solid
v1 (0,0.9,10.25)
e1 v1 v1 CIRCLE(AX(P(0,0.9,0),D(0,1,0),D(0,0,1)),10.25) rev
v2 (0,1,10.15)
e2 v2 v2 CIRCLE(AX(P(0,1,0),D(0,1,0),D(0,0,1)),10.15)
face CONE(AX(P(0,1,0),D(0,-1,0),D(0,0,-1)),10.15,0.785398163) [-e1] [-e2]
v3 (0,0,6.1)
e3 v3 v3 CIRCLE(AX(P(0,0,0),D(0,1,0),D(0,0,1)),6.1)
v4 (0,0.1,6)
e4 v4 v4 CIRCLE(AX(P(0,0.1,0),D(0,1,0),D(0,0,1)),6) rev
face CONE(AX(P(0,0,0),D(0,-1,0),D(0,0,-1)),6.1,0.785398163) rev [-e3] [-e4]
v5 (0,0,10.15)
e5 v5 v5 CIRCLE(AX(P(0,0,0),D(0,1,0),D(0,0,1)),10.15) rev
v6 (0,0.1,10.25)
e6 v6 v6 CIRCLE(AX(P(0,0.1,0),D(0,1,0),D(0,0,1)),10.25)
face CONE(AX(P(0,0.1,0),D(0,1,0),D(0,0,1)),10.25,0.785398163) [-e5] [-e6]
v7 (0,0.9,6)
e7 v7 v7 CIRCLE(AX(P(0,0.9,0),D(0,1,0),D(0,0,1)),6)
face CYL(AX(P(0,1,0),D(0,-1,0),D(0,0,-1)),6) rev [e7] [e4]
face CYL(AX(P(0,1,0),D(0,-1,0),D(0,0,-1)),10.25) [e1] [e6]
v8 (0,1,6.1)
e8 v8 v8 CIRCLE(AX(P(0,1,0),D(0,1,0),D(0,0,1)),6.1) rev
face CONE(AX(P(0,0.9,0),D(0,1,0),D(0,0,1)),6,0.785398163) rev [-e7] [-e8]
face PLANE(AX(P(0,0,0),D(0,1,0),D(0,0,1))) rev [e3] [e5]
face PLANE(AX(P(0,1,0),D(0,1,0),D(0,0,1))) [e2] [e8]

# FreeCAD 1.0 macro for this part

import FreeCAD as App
import Part
import Sketcher
from FreeCAD import Vector


def edges_at(feature, points):
    """Names of the edges that pass closest to the given points."""
    edges = feature.Shape.Edges
    near = lambda p: min(range(len(edges)), key=lambda i: edges[i].distToShape(Part.Vertex(*p))[0])
    return sorted({f"Edge{near(p) + 1}" for p in points})

doc = App.newDocument("Part")
params = doc.addObject("Spreadsheet::Sheet", "Params")
for row, (alias, value) in enumerate([
    ("sketch1_diameter", "12 mm"),
    ("sketch1_diameter2", "20.5 mm"),
    ("pad1_length", "1 mm"),
    ("chamfer_size", "0.1 mm"),
    ("chamfer2_size", "0.1 mm"),
], start=1):
    params.set(f"A{row}", alias)
    params.set(f"B{row}", "=" + value)
    params.setAlias(f"B{row}", alias)

body = doc.addObject("PartDesign::Body", "Body")

# Sketch on XZ plane
sketch1 = body.newObject("Sketcher::SketchObject", "Sketch")
sketch1.AttachmentSupport = (doc.getObject("XZ_Plane"), [""])
sketch1.MapMode = "FlatFace"
sketch1.addGeometry([
    Part.Circle(Vector(0, 0, 0), Vector(0, 0, 1), 10),
    Part.Circle(Vector(0, 0, 0), Vector(0, 0, 1), 6),
], False)
sketch1.addConstraint([
    Sketcher.Constraint("Coincident", 0, 3, -1, 1),
    Sketcher.Constraint("Coincident", 1, 3, -1, 1),
    Sketcher.Constraint("Diameter", 1, 12.0),
    Sketcher.Constraint("Diameter", 0, 20.5),
])
sketch1.setExpression("Constraints[2]", "Params.sketch1_diameter")
sketch1.setExpression("Constraints[3]", "Params.sketch1_diameter2")
pad1 = body.newObject("PartDesign::Pad", "Pad")
pad1.Profile = sketch1
pad1.setExpression("Length", "Params.pad1_length")
pad1.Reversed = True
doc.recompute()

chamfer = body.newObject("PartDesign::Chamfer", "Chamfer")
chamfer.Base = (pad1, edges_at(pad1, [(0, 0, -10.25), (0, 1, -10.25)]))
chamfer.setExpression("Size", "Params.chamfer_size")
doc.recompute()

chamfer2 = body.newObject("PartDesign::Chamfer", "Chamfer001")
chamfer2.Base = (chamfer, edges_at(chamfer, [(0, 0, -6), (0, 1, -6)]))
chamfer2.setExpression("Size", "Params.chamfer2_size")

doc.recompute()
